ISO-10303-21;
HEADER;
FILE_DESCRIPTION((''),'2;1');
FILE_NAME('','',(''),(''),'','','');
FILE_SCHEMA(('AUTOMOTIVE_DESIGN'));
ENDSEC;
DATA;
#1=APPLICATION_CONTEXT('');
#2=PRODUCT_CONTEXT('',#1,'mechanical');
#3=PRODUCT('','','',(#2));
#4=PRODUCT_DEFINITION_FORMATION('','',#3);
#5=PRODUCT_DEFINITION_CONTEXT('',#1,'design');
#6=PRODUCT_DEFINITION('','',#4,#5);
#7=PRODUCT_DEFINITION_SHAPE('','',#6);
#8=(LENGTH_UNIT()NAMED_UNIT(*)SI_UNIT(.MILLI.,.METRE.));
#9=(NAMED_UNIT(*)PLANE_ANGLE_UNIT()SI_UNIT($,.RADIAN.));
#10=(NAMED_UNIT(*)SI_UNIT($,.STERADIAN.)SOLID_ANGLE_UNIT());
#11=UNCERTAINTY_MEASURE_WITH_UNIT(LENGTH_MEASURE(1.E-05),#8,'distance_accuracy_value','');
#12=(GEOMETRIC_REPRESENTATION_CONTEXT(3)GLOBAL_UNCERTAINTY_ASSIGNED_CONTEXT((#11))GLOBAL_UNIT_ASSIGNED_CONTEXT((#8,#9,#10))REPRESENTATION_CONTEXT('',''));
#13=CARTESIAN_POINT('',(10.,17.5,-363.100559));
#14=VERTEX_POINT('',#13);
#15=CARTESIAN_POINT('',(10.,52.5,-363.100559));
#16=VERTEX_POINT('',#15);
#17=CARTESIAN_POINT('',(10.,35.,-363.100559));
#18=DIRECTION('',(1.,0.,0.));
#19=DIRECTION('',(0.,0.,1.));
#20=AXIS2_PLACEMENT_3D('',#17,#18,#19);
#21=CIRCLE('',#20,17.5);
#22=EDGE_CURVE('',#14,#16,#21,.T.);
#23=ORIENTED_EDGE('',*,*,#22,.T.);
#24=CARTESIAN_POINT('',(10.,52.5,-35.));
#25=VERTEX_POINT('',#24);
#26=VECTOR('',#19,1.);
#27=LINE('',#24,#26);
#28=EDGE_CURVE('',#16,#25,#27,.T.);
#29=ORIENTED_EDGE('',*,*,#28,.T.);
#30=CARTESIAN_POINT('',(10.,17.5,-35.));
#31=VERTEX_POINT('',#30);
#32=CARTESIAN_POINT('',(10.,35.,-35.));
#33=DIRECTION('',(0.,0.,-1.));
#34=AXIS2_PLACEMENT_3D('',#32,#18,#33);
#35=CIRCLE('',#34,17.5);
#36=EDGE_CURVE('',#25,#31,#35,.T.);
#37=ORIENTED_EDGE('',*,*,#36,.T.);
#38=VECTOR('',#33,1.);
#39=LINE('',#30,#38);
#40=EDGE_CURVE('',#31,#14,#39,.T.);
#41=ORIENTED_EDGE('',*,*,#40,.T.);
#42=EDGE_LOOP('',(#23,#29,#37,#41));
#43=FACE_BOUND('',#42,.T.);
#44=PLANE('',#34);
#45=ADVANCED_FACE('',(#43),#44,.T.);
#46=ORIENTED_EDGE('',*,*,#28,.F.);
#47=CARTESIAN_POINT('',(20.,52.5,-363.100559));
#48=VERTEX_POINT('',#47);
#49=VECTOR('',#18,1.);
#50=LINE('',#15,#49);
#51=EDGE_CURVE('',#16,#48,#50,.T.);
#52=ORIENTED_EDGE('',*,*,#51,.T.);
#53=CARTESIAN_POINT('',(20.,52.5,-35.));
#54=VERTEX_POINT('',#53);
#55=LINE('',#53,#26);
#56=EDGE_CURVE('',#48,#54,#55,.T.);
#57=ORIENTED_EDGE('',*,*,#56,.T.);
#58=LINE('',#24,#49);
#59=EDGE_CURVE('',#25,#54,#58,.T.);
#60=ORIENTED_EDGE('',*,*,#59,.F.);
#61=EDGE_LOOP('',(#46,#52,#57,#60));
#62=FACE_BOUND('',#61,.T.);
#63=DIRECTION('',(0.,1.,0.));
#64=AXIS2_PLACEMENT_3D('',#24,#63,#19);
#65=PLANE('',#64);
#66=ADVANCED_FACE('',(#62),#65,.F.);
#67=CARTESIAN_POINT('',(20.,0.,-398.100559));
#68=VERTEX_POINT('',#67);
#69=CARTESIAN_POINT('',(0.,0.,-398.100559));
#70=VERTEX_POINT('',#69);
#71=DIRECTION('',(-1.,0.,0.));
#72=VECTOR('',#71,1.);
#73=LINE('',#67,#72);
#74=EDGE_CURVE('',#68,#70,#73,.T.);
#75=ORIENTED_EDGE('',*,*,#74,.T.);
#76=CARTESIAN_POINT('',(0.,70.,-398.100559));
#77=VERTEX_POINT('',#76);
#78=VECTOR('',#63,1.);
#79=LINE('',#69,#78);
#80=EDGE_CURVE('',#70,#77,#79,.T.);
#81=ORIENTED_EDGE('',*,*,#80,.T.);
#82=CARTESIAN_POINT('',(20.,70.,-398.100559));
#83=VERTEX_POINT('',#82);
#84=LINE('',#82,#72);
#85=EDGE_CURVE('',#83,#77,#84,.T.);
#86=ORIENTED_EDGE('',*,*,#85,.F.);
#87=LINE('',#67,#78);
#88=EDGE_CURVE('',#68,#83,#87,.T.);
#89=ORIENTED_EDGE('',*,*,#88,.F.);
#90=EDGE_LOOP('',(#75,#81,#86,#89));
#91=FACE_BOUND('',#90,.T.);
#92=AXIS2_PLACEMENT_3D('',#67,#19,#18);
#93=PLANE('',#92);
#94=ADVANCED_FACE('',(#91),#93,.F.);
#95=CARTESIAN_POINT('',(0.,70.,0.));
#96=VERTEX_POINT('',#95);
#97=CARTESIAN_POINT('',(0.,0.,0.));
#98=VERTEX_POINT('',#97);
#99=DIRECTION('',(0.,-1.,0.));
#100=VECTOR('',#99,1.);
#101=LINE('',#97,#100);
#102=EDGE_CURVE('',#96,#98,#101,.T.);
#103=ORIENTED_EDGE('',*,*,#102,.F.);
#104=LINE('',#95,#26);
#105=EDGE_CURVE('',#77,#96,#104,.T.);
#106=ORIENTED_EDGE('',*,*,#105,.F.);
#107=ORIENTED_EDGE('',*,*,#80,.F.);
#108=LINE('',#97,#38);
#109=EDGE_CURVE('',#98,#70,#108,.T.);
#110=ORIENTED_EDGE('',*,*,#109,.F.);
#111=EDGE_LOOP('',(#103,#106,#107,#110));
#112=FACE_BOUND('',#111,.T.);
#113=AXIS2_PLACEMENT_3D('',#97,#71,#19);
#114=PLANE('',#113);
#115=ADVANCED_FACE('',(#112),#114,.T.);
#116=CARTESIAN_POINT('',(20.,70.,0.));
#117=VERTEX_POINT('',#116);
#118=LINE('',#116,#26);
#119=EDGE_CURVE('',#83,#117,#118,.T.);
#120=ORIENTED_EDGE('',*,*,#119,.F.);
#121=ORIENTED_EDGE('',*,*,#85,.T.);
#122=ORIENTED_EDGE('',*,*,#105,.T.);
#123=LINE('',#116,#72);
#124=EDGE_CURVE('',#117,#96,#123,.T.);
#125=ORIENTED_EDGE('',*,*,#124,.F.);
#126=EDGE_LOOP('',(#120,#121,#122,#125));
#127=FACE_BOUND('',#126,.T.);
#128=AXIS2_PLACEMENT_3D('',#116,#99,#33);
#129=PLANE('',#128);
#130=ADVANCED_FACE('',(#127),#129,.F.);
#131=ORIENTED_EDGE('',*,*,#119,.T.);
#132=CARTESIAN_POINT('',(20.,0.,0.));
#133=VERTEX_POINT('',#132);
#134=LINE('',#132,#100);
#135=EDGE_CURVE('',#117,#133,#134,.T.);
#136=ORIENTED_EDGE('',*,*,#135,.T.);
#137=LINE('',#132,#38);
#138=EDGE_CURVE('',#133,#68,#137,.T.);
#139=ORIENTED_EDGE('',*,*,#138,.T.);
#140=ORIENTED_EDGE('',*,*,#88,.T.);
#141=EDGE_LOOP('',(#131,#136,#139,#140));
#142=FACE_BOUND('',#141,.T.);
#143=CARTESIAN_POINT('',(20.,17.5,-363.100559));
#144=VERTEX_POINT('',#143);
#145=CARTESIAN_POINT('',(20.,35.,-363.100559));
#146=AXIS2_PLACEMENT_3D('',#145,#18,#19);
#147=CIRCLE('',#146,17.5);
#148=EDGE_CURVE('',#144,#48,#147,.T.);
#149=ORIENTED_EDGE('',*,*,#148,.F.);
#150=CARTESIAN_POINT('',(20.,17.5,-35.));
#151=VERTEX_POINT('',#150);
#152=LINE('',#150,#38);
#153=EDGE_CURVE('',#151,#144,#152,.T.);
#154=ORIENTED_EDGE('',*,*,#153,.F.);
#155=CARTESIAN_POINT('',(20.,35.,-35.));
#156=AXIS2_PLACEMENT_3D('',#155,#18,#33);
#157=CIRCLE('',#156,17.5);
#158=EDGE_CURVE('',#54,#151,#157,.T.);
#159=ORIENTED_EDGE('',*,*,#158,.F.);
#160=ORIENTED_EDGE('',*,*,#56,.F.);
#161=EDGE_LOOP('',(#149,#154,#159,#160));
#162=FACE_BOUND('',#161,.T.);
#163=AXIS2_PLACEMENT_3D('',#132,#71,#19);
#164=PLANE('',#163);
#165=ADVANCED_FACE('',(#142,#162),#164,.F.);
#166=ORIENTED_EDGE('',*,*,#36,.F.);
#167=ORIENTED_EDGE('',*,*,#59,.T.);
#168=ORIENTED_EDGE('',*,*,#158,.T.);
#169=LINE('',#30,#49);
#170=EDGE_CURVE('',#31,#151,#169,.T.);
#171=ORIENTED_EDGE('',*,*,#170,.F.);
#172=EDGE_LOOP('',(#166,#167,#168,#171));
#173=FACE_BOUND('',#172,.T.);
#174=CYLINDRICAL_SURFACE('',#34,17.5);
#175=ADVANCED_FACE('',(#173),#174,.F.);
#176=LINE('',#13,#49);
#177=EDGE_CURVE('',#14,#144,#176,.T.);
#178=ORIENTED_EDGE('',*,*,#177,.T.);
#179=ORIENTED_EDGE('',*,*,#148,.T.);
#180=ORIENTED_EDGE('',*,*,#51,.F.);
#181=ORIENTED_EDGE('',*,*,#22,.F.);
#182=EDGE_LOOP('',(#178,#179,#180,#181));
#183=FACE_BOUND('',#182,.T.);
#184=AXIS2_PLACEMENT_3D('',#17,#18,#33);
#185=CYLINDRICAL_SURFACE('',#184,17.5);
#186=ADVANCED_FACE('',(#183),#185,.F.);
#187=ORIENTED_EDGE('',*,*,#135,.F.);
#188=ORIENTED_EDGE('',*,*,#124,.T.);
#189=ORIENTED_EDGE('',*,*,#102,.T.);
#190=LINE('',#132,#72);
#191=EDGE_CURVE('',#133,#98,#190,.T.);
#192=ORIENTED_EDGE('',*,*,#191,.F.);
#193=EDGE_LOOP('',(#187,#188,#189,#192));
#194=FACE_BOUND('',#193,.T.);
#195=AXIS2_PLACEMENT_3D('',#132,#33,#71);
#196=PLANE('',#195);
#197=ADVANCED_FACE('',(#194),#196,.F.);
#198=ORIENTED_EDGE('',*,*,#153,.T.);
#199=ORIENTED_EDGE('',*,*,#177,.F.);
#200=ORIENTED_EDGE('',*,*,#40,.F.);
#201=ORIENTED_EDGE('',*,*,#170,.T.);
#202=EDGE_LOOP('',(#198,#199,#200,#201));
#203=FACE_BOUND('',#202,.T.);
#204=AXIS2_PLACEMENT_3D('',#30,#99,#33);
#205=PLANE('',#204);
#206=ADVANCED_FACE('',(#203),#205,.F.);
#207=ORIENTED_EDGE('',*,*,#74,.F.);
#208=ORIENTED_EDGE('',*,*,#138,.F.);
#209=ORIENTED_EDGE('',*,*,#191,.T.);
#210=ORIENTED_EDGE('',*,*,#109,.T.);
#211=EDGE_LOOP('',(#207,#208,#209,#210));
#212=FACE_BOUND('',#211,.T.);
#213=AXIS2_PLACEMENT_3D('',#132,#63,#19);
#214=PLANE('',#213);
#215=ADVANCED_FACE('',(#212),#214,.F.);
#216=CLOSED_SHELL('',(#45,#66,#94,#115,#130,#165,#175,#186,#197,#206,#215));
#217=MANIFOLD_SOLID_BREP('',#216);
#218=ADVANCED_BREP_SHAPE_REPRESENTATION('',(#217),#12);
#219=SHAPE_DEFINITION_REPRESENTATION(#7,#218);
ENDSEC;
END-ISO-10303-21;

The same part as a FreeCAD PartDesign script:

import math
import FreeCAD as App
import Part
import Sketcher

V = App.Vector

doc = App.newDocument("Part")
body = doc.addObject("PartDesign::Body", "Body")

# Sketch on YZ plane
sketch1 = body.newObject("Sketcher::SketchObject", "Sketch")
sketch1.AttachmentSupport = (doc.getObject("YZ_Plane"), [""])
sketch1.MapMode = "FlatFace"
sketch1.addGeometry([
    Part.LineSegment(V(70, 0, 0), V(0, 0, 0)),
    Part.LineSegment(V(0, 0, 0), V(0, -398.100559, 0)),
    Part.LineSegment(V(0, -398.100559, 0), V(70, -398.100559, 0)),
    Part.LineSegment(V(70, -398.100559, 0), V(70, 0, 0)),
], False)
sketch1.addConstraint([
    Sketcher.Constraint("Coincident", 0, 2, 1, 1),
    Sketcher.Constraint("Coincident", 1, 2, 2, 1),
    Sketcher.Constraint("Coincident", 2, 2, 3, 1),
    Sketcher.Constraint("Coincident", 3, 2, 0, 1),
    Sketcher.Constraint("Horizontal", 0),
    Sketcher.Constraint("Vertical", 1),
    Sketcher.Constraint("Horizontal", 2),
    Sketcher.Constraint("Vertical", 3),
    Sketcher.Constraint("Coincident", 0, 2, -1, 1),
    Sketcher.Constraint("DistanceX", 0, 2, 0, 1, 70.0),
    Sketcher.Constraint("DistanceY", 1, 2, 1, 1, 398.100559),
])
pad1 = body.newObject("PartDesign::Pad", "Pad")
pad1.Profile = sketch1
pad1.Length = 20

# Sketch on YZ plane
sketch2 = body.newObject("Sketcher::SketchObject", "Sketch001")
sketch2.AttachmentSupport = (doc.getObject("YZ_Plane"), [""])
sketch2.MapMode = "FlatFace"
sketch2.AttachmentOffset = App.Placement(V(0, 0, 20), App.Rotation())
sketch2.addGeometry([
    Part.LineSegment(V(52.5, -363.100559, 0), V(52.5, -35, 0)),
    Part.ArcOfCircle(Part.Circle(V(35, -35, 0), V(0, 0, 1), 17.5), math.radians(0), math.radians(180)),
    Part.LineSegment(V(17.5, -35, 0), V(17.5, -363.100559, 0)),
    Part.ArcOfCircle(Part.Circle(V(35, -363.100559, 0), V(0, 0, 1), 17.5), math.radians(180), math.radians(360)),
], False)
sketch2.addConstraint([
    Sketcher.Constraint("Tangent", 0, 2, 1, 1),
    Sketcher.Constraint("Tangent", 1, 2, 2, 1),
    Sketcher.Constraint("Tangent", 2, 2, 3, 1),
    Sketcher.Constraint("Tangent", 3, 2, 0, 1),
    Sketcher.Constraint("Vertical", 0),
    Sketcher.Constraint("Vertical", 2),
    Sketcher.Constraint("Radius", 1, 17.5),
    Sketcher.Constraint("DistanceX", -1, 1, 1, 3, 35.0),
    Sketcher.Constraint("DistanceY", 1, 3, -1, 1, 35.0),
    Sketcher.Constraint("DistanceY", 0, 1, 0, 2, 328.100559),
])
pocket1 = body.newObject("PartDesign::Pocket", "Pocket")
pocket1.Profile = sketch2
pocket1.Length = 10

doc.recompute()
